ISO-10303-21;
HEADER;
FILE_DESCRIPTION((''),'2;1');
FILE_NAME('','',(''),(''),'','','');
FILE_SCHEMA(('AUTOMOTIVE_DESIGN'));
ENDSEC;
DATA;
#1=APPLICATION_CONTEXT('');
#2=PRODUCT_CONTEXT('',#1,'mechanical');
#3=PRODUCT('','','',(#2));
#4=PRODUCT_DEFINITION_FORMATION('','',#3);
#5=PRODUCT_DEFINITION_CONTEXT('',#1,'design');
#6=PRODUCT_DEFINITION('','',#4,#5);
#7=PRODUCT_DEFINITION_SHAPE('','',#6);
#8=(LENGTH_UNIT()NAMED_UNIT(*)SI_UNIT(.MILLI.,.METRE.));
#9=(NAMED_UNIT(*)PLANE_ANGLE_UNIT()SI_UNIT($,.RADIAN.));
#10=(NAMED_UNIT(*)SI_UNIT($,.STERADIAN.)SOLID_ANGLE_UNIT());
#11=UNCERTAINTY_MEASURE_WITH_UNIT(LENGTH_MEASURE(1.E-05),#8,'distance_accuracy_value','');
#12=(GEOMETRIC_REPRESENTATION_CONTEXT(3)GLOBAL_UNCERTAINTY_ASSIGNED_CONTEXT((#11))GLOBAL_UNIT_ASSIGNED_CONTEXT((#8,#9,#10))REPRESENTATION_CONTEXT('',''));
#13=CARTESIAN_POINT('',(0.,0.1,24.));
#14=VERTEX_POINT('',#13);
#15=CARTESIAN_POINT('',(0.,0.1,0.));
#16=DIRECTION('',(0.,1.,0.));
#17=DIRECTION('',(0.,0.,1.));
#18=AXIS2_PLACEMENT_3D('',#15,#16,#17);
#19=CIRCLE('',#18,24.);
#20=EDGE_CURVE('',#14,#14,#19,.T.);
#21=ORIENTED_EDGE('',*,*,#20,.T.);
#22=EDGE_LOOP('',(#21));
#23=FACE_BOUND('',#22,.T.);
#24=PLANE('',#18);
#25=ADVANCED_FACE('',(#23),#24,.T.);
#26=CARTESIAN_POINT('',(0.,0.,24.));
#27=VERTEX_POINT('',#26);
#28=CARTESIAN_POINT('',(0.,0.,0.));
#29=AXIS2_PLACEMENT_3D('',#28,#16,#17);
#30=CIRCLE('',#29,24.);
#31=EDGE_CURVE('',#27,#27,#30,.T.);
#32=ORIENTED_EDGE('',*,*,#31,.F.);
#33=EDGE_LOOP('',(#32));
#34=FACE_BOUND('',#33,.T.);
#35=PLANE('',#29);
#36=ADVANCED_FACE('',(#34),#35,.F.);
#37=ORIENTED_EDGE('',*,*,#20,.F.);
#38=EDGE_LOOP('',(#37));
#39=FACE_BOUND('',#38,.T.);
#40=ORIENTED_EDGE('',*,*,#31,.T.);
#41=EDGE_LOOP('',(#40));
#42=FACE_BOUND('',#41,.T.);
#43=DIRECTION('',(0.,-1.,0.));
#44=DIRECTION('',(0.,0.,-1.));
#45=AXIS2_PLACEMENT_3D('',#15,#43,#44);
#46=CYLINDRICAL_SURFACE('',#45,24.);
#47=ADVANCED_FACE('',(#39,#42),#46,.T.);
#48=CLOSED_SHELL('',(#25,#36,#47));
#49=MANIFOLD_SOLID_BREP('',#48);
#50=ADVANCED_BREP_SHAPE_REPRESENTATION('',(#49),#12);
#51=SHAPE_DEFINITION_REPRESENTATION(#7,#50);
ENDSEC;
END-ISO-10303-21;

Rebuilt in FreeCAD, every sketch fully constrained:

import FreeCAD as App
import Part
import Sketcher

V = App.Vector

doc = App.newDocument("Part")
body = doc.addObject("PartDesign::Body", "Body")

sketch1 = body.newObject("Sketcher::SketchObject", "Sketch")
sketch1.AttachmentSupport = (doc.getObject("XZ_Plane"), [""])
sketch1.MapMode = "FlatFace"
sketch1.addGeometry(Part.Circle(V(0, 0, 0), V(0, 0, 1), 24), False)
sketch1.addConstraint([
    Sketcher.Constraint("Coincident", 0, 3, -1, 1),
    Sketcher.Constraint("Diameter", 0, 48.0),
])
pad1 = body.newObject("PartDesign::Pad", "Pad")
pad1.Profile = sketch1
pad1.Length = 0.1
pad1.Reversed = True

doc.recompute()
